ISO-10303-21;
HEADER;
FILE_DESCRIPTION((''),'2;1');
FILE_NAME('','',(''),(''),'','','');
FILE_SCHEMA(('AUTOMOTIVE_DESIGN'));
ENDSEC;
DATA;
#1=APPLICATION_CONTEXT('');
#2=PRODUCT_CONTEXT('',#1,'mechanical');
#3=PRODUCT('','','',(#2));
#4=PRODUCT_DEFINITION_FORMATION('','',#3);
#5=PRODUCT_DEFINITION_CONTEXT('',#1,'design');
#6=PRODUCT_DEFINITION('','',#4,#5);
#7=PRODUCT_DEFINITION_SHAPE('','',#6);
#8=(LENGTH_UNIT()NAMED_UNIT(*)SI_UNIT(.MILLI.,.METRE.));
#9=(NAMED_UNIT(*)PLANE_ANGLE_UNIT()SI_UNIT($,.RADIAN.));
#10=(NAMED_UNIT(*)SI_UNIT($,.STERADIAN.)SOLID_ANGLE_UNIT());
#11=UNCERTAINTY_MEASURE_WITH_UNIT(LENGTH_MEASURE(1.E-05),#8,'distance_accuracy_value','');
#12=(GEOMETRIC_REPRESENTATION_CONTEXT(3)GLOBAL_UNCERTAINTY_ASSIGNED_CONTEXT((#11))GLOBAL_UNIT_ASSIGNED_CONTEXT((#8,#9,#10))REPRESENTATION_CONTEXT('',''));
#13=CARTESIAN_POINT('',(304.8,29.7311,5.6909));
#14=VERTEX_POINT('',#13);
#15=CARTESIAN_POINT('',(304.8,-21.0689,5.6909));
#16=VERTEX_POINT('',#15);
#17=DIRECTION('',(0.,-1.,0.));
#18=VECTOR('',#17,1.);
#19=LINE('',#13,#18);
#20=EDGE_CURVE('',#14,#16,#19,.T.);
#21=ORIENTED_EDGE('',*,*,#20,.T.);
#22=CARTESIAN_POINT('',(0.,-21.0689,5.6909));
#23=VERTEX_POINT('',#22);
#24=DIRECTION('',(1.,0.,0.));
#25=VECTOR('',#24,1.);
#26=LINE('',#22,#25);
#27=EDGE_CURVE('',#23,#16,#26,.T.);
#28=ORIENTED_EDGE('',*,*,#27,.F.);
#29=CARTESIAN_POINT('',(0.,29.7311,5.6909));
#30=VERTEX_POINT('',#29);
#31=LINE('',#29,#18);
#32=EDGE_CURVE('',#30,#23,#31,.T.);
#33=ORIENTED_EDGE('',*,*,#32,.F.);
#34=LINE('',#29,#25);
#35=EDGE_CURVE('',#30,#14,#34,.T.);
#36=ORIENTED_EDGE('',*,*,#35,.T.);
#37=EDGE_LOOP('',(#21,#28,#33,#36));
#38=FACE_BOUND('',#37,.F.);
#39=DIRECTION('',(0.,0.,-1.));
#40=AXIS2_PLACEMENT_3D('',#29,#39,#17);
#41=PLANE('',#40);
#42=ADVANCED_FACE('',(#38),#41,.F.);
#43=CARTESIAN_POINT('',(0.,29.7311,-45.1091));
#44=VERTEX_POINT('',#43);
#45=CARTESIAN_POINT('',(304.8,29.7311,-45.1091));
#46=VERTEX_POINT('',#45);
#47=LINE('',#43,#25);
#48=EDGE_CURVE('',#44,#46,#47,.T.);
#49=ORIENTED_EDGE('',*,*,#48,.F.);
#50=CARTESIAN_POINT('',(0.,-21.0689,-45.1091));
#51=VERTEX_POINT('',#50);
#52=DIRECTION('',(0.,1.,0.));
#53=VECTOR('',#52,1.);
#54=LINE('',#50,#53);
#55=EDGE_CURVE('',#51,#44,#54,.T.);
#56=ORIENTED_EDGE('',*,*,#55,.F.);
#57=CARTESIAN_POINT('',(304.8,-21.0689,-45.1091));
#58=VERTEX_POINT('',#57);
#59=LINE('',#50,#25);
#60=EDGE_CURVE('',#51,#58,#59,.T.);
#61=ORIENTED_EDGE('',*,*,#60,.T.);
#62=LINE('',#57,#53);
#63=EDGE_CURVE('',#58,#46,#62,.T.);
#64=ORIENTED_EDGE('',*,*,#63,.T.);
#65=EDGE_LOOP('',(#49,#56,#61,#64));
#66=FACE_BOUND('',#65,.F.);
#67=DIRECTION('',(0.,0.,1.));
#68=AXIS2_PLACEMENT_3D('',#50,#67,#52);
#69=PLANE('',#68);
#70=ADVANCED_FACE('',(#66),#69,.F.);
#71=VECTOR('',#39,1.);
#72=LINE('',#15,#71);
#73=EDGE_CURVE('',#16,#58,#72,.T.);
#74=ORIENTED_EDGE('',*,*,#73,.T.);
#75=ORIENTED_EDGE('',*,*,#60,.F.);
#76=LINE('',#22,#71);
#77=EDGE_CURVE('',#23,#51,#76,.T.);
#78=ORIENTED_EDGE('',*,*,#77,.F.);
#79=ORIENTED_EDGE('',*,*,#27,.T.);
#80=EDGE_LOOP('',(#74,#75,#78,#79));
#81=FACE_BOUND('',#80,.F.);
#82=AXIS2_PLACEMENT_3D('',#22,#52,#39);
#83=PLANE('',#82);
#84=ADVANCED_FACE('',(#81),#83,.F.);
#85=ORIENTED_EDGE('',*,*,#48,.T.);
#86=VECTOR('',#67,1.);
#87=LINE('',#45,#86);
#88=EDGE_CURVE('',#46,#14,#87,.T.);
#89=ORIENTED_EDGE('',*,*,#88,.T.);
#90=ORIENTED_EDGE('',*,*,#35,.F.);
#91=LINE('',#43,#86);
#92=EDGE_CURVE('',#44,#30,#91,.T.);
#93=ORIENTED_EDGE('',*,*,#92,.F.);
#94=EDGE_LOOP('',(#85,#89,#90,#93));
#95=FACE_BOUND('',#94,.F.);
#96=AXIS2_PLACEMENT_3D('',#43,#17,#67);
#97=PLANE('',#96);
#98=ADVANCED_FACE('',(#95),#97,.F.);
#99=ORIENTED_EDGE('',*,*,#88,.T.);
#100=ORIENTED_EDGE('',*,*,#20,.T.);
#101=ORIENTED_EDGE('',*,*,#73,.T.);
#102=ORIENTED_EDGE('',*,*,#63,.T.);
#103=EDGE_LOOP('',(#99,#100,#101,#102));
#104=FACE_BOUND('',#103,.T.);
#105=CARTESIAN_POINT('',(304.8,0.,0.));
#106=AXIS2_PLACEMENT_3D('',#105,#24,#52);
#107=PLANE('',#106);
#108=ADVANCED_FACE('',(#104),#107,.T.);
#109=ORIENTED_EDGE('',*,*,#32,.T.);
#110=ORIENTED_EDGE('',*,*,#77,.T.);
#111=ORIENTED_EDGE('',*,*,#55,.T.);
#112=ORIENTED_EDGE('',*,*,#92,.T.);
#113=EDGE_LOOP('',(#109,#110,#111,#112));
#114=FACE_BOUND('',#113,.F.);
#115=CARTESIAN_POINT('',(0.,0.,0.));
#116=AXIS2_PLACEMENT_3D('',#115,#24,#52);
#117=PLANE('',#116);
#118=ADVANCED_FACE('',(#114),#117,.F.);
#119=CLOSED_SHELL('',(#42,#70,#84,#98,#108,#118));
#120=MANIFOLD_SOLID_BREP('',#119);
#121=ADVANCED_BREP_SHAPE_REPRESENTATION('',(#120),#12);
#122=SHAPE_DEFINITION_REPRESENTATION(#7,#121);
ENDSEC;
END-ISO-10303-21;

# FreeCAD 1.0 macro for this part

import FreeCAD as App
import Part
import Sketcher
Q = App.Units.Quantity

doc = App.newDocument("Part")
body = doc.addObject("PartDesign::Body", "Body")

# Sketch on YZ plane
sketch1 = doc.addObject("Sketcher::SketchObject", "Sketch")
body.addObject(sketch1)
sketch1.AttachmentSupport = (doc.YZ_Plane, [""])
sketch1.MapMode = "FlatFace"
sketch1.addGeometry([
    Part.LineSegment(App.Vector(30, -45, 0), App.Vector(30, 6, 0)),
    Part.LineSegment(App.Vector(30, 6, 0), App.Vector(-21, 6, 0)),
    Part.LineSegment(App.Vector(-21, 6, 0), App.Vector(-21, -45, 0)),
    Part.LineSegment(App.Vector(-21, -45, 0), App.Vector(30, -45, 0)),
], False)
sketch1.addConstraint([
    Sketcher.Constraint("Coincident", 0, 2, 1, 1),
    Sketcher.Constraint("Coincident", 1, 2, 2, 1),
    Sketcher.Constraint("Coincident", 2, 2, 3, 1),
    Sketcher.Constraint("Coincident", 3, 2, 0, 1),
    Sketcher.Constraint("Vertical", 0),
    Sketcher.Constraint("Horizontal", 1),
    Sketcher.Constraint("Vertical", 2),
    Sketcher.Constraint("Horizontal", 3),
    Sketcher.Constraint("Equal", 3, 0),
    Sketcher.Constraint("DistanceX", 1, 2, 1, 1, Q("2 in")),
    Sketcher.Constraint("DistanceX", -1, 1, 0, 2, Q("1.1705118 in")),
    Sketcher.Constraint("DistanceY", -1, 1, 0, 2, Q("5.691 mm")),
])
pad1 = doc.addObject("PartDesign::Pad", "Pad")
body.addObject(pad1)
pad1.Profile = sketch1
pad1.Length = Q("12 in")

doc.recompute()
